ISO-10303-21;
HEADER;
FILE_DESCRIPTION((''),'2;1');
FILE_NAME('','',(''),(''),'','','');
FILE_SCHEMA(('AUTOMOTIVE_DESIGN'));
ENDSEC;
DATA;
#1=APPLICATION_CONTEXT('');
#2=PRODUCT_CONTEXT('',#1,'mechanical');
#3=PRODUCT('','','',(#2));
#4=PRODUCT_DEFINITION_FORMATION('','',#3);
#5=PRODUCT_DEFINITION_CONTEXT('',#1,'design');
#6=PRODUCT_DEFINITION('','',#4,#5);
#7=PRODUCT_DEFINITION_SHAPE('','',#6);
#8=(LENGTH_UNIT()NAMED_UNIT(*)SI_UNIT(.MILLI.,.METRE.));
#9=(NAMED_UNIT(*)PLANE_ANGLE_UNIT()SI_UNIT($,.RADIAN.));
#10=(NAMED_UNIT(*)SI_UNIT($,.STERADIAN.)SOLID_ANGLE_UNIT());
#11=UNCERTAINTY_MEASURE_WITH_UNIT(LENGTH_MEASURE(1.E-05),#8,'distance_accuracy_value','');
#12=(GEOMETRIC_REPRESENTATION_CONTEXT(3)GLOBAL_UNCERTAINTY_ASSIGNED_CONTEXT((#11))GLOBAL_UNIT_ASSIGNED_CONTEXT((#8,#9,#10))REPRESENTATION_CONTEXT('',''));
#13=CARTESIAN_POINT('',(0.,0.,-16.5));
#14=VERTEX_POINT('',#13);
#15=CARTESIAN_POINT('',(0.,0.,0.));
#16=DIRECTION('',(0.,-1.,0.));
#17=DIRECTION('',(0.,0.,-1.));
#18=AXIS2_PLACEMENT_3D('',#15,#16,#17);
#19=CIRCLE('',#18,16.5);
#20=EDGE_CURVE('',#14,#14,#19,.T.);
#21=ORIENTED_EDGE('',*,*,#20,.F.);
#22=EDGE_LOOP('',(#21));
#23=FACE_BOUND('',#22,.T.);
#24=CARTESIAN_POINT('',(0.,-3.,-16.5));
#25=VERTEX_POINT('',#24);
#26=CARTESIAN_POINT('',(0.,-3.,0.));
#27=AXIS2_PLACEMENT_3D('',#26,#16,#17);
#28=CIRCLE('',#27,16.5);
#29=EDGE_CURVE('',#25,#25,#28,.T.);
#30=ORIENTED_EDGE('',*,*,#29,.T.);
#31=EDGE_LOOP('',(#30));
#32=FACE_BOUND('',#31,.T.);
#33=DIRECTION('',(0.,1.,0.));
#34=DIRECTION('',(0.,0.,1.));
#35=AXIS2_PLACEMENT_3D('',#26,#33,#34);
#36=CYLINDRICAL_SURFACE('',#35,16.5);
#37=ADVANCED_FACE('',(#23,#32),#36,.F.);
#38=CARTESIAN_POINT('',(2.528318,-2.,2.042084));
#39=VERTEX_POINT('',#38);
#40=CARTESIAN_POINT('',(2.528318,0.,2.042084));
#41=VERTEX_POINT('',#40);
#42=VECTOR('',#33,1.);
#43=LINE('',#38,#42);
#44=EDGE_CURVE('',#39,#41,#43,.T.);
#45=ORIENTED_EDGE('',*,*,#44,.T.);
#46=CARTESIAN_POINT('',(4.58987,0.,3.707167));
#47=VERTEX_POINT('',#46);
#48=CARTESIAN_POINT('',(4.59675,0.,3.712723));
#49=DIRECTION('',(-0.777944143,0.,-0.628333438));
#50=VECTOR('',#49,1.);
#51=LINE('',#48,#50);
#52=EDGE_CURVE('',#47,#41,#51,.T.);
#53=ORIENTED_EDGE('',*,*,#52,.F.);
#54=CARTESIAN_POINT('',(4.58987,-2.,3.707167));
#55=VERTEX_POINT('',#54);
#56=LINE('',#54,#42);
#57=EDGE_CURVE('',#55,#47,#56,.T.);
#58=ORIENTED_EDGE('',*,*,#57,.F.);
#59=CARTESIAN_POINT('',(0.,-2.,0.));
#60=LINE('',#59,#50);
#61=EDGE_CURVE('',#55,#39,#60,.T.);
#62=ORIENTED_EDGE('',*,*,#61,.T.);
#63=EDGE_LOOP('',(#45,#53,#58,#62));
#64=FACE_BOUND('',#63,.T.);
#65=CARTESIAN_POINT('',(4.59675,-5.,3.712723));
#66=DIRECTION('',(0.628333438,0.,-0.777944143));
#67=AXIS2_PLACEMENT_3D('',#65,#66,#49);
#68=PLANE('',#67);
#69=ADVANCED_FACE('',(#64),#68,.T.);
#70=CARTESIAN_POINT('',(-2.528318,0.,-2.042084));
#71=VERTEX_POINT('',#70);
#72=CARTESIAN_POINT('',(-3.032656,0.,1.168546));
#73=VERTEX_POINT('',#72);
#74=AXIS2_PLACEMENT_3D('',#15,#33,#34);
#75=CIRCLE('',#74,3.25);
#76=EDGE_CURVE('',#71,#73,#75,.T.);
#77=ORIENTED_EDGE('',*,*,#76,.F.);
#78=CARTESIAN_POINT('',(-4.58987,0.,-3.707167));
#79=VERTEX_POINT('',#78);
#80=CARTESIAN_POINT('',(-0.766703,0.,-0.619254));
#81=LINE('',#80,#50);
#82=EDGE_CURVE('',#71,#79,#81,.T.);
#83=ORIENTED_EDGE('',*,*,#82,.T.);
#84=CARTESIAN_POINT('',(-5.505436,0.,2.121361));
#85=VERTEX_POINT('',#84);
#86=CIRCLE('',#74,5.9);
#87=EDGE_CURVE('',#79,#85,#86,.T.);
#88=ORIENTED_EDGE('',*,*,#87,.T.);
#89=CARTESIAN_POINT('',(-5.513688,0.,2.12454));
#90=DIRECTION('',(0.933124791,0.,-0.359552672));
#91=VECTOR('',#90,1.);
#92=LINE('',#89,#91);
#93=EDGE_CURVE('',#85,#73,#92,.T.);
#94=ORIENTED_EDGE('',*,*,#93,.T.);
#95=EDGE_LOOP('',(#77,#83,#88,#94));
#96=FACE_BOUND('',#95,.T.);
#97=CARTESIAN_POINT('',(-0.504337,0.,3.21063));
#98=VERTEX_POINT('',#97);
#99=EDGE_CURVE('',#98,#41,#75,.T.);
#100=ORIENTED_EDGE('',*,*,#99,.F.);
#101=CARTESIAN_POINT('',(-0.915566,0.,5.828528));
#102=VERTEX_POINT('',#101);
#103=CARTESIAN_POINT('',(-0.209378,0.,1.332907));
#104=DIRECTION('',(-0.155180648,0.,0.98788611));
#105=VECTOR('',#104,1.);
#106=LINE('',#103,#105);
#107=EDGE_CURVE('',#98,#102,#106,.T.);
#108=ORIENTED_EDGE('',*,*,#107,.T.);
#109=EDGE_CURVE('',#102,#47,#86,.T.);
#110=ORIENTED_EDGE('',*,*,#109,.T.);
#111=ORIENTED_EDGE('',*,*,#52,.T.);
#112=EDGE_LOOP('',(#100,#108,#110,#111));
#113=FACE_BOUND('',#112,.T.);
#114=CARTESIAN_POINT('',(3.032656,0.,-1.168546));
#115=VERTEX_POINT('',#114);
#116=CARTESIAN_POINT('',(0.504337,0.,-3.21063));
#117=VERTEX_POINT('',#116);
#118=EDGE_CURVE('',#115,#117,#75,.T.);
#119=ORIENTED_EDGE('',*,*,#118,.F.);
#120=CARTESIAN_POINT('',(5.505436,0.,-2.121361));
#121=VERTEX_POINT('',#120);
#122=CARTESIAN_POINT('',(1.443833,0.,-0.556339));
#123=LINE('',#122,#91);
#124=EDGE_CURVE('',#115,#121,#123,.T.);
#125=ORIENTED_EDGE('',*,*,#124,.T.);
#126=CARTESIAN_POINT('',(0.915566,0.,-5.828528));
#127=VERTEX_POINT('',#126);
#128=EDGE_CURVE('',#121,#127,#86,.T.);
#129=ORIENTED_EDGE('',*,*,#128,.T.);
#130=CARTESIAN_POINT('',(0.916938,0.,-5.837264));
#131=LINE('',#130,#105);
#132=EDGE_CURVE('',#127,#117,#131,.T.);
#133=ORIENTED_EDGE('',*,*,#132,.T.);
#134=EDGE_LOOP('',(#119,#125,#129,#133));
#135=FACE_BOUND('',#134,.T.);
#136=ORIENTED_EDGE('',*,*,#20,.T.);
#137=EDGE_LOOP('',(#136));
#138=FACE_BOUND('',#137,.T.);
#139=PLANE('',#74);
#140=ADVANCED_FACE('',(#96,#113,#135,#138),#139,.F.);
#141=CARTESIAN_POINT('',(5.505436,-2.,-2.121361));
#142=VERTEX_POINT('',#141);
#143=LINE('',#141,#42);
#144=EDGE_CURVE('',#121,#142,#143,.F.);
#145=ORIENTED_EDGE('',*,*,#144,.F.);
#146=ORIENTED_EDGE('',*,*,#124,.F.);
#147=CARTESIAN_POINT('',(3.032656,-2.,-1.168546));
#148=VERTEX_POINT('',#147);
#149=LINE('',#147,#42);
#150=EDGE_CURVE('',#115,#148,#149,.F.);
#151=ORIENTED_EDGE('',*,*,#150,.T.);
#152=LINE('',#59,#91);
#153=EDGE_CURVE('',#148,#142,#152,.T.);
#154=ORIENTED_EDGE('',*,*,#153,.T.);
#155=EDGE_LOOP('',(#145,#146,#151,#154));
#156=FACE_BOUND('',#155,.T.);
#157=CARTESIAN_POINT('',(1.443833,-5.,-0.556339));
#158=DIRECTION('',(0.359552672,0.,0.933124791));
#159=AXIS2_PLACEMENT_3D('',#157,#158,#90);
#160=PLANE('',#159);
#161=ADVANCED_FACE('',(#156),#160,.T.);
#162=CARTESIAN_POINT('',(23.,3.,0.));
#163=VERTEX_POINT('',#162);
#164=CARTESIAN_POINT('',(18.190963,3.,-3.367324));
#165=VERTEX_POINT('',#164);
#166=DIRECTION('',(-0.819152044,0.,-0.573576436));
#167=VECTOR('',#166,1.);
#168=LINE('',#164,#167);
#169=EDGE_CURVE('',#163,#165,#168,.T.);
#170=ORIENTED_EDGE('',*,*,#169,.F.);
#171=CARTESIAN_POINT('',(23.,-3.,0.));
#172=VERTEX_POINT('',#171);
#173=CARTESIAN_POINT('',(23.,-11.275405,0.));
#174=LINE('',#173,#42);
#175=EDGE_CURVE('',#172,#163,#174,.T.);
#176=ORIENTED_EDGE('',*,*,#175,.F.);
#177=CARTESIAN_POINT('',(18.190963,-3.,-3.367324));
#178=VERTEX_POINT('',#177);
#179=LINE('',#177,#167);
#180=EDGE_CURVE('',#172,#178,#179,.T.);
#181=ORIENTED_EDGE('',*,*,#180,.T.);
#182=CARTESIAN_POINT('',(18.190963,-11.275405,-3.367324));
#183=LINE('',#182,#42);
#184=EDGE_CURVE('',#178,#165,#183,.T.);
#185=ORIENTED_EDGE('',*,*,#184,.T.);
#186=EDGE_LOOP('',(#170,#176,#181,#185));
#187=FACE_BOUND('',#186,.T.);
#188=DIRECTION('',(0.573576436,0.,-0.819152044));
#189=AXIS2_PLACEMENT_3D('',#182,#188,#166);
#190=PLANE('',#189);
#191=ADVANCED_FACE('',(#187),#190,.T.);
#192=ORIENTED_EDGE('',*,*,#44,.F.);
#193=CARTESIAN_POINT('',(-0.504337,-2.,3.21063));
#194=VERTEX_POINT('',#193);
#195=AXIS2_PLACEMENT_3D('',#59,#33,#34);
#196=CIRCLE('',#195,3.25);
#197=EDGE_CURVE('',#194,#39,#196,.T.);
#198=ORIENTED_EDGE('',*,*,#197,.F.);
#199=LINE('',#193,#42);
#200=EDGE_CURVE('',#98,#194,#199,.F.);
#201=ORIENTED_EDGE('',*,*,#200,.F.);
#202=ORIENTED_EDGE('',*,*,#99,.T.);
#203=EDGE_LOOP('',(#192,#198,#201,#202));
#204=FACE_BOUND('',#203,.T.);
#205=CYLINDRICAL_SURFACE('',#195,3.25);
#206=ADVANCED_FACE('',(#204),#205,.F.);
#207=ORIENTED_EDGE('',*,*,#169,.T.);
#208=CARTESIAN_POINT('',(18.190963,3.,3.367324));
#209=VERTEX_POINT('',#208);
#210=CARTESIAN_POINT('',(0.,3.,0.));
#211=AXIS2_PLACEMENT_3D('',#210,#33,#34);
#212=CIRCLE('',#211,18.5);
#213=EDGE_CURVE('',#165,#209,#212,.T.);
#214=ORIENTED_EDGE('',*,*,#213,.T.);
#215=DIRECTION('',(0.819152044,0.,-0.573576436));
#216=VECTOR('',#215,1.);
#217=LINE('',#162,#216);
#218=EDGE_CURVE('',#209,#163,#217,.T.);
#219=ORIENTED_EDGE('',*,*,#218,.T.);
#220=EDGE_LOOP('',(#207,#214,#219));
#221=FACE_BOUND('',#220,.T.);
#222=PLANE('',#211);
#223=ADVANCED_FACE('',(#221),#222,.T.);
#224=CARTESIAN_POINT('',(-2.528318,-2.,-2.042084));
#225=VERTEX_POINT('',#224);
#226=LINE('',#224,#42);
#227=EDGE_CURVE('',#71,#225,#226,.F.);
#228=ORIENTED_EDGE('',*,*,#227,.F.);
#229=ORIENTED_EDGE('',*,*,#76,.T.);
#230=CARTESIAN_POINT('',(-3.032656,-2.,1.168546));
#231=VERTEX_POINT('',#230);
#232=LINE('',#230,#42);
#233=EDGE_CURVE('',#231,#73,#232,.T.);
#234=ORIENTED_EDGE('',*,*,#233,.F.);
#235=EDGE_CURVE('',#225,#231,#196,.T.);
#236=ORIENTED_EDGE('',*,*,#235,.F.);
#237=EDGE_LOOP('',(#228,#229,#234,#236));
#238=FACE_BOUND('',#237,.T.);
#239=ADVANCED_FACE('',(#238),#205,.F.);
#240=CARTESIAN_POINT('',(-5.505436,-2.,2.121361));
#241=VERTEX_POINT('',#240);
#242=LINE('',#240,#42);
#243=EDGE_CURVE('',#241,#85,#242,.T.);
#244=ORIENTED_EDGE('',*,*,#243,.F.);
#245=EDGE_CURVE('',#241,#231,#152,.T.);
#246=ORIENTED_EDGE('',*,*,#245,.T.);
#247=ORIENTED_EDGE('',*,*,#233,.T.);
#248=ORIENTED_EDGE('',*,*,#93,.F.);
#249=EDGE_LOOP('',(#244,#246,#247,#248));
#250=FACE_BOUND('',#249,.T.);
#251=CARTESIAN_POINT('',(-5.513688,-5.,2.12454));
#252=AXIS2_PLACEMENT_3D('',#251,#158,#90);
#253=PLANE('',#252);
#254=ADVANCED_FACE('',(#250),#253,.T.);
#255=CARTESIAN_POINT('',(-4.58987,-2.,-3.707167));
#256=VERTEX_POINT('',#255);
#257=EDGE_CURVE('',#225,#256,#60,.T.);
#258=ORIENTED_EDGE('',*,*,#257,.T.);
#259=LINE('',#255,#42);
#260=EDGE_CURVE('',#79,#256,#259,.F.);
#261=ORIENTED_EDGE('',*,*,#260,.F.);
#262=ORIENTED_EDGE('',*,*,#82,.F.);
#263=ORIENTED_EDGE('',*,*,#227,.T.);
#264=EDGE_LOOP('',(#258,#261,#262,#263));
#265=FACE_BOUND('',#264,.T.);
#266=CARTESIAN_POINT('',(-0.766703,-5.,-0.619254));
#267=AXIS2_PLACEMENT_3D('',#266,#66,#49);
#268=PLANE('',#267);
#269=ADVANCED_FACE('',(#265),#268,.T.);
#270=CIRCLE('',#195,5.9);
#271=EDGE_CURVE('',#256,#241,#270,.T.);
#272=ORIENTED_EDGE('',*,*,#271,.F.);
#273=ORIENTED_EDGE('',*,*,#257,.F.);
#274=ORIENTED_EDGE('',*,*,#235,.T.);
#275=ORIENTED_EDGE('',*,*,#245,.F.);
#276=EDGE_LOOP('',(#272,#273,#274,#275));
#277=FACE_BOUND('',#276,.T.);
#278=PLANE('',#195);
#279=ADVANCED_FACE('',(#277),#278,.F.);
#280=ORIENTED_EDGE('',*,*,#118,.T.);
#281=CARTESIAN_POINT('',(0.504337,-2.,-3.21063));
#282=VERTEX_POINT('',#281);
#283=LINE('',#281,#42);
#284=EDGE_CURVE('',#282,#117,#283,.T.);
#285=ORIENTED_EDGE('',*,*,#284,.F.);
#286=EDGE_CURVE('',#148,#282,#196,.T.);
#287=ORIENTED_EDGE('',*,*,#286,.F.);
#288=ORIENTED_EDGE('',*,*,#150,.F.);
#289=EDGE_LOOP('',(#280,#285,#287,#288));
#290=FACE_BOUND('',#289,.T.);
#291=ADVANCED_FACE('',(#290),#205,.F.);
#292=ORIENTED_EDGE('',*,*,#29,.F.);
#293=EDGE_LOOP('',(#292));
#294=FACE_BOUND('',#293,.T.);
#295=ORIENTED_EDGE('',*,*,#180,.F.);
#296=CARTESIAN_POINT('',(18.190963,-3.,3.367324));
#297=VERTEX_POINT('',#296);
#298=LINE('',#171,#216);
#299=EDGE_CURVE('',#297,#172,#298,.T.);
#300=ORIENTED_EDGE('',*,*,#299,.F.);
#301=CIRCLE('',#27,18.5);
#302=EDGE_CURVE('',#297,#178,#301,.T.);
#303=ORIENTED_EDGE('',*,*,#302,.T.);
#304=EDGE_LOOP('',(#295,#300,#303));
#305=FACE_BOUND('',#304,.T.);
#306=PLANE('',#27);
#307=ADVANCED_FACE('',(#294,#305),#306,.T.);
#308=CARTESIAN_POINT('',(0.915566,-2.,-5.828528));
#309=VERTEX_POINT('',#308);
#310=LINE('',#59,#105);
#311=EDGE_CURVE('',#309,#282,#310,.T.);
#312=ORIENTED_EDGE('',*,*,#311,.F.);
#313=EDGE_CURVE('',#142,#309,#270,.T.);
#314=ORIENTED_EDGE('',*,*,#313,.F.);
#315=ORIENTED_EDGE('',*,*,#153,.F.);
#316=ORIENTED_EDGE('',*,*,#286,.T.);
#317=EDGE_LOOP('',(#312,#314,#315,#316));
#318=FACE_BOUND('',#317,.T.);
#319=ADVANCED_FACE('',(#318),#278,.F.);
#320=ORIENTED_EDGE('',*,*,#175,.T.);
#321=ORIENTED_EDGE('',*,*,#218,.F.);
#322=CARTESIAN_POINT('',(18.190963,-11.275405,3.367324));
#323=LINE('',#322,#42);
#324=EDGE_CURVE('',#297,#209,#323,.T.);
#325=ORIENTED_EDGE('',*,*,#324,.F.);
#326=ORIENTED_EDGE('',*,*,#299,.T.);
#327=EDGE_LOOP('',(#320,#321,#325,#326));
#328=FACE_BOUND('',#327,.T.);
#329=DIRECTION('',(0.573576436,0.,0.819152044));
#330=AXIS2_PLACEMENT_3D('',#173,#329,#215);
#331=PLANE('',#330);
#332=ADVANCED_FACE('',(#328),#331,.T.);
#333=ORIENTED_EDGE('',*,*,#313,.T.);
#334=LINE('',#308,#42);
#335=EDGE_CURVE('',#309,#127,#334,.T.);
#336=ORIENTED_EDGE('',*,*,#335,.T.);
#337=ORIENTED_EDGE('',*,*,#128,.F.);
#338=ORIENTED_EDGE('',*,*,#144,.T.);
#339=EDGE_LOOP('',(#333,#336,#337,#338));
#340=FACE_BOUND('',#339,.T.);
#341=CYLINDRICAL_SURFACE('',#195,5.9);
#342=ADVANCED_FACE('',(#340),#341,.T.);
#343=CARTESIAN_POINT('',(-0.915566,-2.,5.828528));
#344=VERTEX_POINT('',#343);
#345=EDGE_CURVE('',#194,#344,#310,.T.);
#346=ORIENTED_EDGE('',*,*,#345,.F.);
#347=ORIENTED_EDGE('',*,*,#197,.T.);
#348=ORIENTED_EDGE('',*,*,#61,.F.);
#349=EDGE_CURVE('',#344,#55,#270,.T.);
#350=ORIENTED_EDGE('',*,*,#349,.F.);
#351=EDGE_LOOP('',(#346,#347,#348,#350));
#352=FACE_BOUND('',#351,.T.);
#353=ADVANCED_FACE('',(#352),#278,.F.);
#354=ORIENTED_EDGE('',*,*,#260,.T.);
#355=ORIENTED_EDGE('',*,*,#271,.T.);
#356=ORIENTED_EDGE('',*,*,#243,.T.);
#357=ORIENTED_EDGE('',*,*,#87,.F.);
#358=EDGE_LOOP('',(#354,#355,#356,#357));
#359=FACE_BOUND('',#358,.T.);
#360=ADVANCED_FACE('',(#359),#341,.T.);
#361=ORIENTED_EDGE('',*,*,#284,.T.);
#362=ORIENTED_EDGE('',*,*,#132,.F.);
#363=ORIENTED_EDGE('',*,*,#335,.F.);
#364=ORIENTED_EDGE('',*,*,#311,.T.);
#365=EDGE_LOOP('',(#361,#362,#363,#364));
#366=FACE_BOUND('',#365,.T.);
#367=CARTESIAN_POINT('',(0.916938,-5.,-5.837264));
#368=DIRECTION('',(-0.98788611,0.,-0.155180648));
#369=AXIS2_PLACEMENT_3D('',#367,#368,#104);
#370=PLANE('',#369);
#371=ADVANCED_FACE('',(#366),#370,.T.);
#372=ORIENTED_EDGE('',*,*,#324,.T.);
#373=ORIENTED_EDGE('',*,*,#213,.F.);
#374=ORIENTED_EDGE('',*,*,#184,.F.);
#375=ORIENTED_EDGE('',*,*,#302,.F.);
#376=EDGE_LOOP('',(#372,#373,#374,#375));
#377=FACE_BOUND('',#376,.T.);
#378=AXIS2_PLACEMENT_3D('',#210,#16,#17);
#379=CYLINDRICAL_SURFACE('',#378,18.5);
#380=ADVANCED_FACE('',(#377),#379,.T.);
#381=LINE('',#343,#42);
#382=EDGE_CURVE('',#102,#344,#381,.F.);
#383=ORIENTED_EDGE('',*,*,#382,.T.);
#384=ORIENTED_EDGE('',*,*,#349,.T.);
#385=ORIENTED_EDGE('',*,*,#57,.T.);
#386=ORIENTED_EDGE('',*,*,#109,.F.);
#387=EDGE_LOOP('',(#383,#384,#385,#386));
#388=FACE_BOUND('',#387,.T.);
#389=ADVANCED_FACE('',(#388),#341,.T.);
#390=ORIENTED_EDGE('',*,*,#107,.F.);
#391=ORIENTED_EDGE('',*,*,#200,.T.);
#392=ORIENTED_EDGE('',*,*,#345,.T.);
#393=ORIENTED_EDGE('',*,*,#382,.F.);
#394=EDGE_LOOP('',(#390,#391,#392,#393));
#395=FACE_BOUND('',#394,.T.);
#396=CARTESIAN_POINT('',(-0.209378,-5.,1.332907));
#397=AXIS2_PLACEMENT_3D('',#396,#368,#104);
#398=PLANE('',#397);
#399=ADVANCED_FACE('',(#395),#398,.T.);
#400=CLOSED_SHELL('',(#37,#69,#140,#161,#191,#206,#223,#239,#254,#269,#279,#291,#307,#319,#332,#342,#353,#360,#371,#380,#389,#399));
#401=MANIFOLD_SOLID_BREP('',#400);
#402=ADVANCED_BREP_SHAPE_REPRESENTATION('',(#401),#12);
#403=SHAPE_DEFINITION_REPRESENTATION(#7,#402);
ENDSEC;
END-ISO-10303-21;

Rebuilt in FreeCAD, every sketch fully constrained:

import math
import FreeCAD as App
import Part
import Sketcher

V = App.Vector
Q = App.Units.Quantity


def add_polygon(sketch, points):
    """Adds a closed chain of lines whose ends are joined by coincident constraints."""
    first, n = sketch.GeometryCount, len(points)
    for a, b in zip(points, points[1:] + points[:1]):
        sketch.addGeometry(Part.LineSegment(App.Vector(*a, 0), App.Vector(*b, 0)), False)
    for i in range(n):
        sketch.addConstraint(Sketcher.Constraint("Coincident", first + i, 2, first + (i + 1) % n, 1))

doc = App.newDocument("Part")
body = doc.addObject("PartDesign::Body", "Body")

# Sketch on XZ plane
sketch1 = body.newObject("Sketcher::SketchObject", "Sketch")
sketch1.AttachmentSupport = (doc.getObject("XZ_Plane"), [""])
sketch1.MapMode = "FlatFace"
sketch1.addGeometry(Part.Circle(V(0, 0, 0), V(0, 0, 1), 18), False)
sketch1.addConstraint(Sketcher.Constraint("Coincident", 0, 3, -1, 1))
sketch1.addConstraint(Sketcher.Constraint("Diameter", 0, Q("37 mm")))
pad1 = body.newObject("PartDesign::Pad", "Pad")
pad1.Profile = sketch1
pad1.Length = 3
pad1.Reversed = True

# Sketch on XZ plane
sketch2 = body.newObject("Sketcher::SketchObject", "Sketch001")
sketch2.AttachmentSupport = (doc.getObject("XZ_Plane"), [""])
sketch2.MapMode = "FlatFace"
sketch2.AttachmentOffset = App.Placement(V(0, 0, 3), App.Rotation())
sketch2.addGeometry(Part.Circle(V(0, 0, 0), V(0, 0, 1), 18), False)
sketch2.addGeometry(Part.Circle(V(0, 0, 0), V(0, 0, 1), 16), False)
sketch2.addConstraint(Sketcher.Constraint("Coincident", 0, 3, -1, 1))
sketch2.addConstraint(Sketcher.Constraint("Coincident", 1, 3, -1, 1))
sketch2.addConstraint(Sketcher.Constraint("Diameter", 0, Q("37 mm")))
sketch2.addConstraint(Sketcher.Constraint("Diameter", 1, Q("33 mm")))
pad2 = body.newObject("PartDesign::Pad", "Pad001")
pad2.Profile = sketch2
pad2.Length = 3
pad2.Reversed = True

# Sketch on XZ plane
sketch3 = body.newObject("Sketcher::SketchObject", "Sketch002")
sketch3.AttachmentSupport = (doc.getObject("XZ_Plane"), [""])
sketch3.MapMode = "FlatFace"
sketch3.AttachmentOffset = App.Placement(V(0, 0, -3), App.Rotation())
sketch3.addGeometry(Part.Circle(V(0, 0, 0), V(0, 0, 1), 5.9), False)
sketch3.addGeometry(Part.Circle(V(0, 0, 0), V(0, 0, 1), 3.2), False)
sketch3.addConstraint(Sketcher.Constraint("Coincident", 0, 3, -1, 1))
sketch3.addConstraint(Sketcher.Constraint("Coincident", 1, 3, -1, 1))
sketch3.addConstraint(Sketcher.Constraint("Diameter", 0, Q("11.8 mm")))
sketch3.addConstraint(Sketcher.Constraint("Diameter", 1, Q("6.5 mm")))
pad3 = body.newObject("PartDesign::Pad", "Pad002")
pad3.Profile = sketch3
pad3.Length = 5

# Sketch on XZ plane
sketch4 = body.newObject("Sketcher::SketchObject", "Sketch003")
sketch4.AttachmentSupport = (doc.getObject("XZ_Plane"), [""])
sketch4.MapMode = "FlatFace"
sketch4.addGeometry(Part.LineSegment(V(4.6, 3.7, 0), V(1.3, 1, 0)), False)
sketch4.addGeometry(Part.LineSegment(V(1.3, 1, 0), V(1.4, -0.6, 0)), False)
sketch4.addGeometry(Part.LineSegment(V(1.4, -0.6, 0), V(5.5, -2.1, 0)), False)
sketch4.addGeometry(Part.ArcOfCircle(Part.Circle(V(0, 0, 0), V(0, 0, 1), 5.9), math.radians(-21), math.radians(39)), False)
sketch4.addGeometry(Part.LineSegment(V(-0.8, -0.6, 0), V(-4.6, -3.7, 0)), False)
sketch4.addGeometry(Part.ArcOfCircle(Part.Circle(V(0, 0, 0), V(0, 0, 1), 5.9), math.radians(-141), math.radians(-81)), False)
sketch4.addGeometry(Part.LineSegment(V(0.9, -5.8, 0), V(0.2, -1, 0)), False)
sketch4.addGeometry(Part.LineSegment(V(0.2, -1, 0), V(-0.8, -0.6, 0)), False)
sketch4.addGeometry(Part.LineSegment(V(-0.2, 1.3, 0), V(-0.9, 5.8, 0)), False)
sketch4.addGeometry(Part.ArcOfCircle(Part.Circle(V(0, 0, 0), V(0, 0, 1), 5.9), math.radians(99), math.radians(159)), False)
sketch4.addGeometry(Part.LineSegment(V(-5.5, 2.1, 0), V(-1.1, 0.4, 0)), False)
sketch4.addGeometry(Part.LineSegment(V(-1.1, 0.4, 0), V(-0.2, 1.3, 0)), False)
sketch4.addConstraint(Sketcher.Constraint("Coincident", 0, 2, 1, 1))
sketch4.addConstraint(Sketcher.Constraint("Coincident", 1, 2, 2, 1))
sketch4.addConstraint(Sketcher.Constraint("Coincident", 2, 2, 3, 1))
sketch4.addConstraint(Sketcher.Constraint("Coincident", 3, 2, 0, 1))
sketch4.addConstraint(Sketcher.Constraint("Coincident", 4, 2, 5, 1))
sketch4.addConstraint(Sketcher.Constraint("Coincident", 5, 2, 6, 1))
sketch4.addConstraint(Sketcher.Constraint("Coincident", 6, 2, 7, 1))
sketch4.addConstraint(Sketcher.Constraint("Coincident", 7, 2, 4, 1))
sketch4.addConstraint(Sketcher.Constraint("Coincident", 8, 2, 9, 1))
sketch4.addConstraint(Sketcher.Constraint("Coincident", 9, 2, 10, 1))
sketch4.addConstraint(Sketcher.Constraint("Coincident", 10, 2, 11, 1))
sketch4.addConstraint(Sketcher.Constraint("Coincident", 11, 2, 8, 1))
sketch4.addConstraint(Sketcher.Constraint("Coincident", 3, 3, -1, 1))
sketch4.addConstraint(Sketcher.Constraint("Coincident", 5, 3, -1, 1))
sketch4.addConstraint(Sketcher.Constraint("Coincident", 9, 3, -1, 1))
sketch4.addConstraint(Sketcher.Constraint("Equal", 3, 5))
sketch4.addConstraint(Sketcher.Constraint("Equal", 5, 9))
sketch4.addConstraint(Sketcher.Constraint("Parallel", 0, 4))
sketch4.addConstraint(Sketcher.Constraint("Parallel", 6, 8))
sketch4.addConstraint(Sketcher.Constraint("Parallel", 2, 10))
sketch4.addConstraint(Sketcher.Constraint("Radius", 3, Q("5.908843 mm")))
sketch4.addConstraint(Sketcher.Constraint("DistanceY", 2, 2, 1, 2, Q("1.568201 mm")))
sketch4.addConstraint(Sketcher.Constraint("DistanceY", 0, 2, 11, 2, Q("0.295202 mm")))
sketch4.addConstraint(Sketcher.Constraint("Distance", 1, Q("1.601959 mm")))
sketch4.addConstraint(Sketcher.Constraint("Distance", 6, Q("4.93948 mm")))
sketch4.addConstraint(Sketcher.Constraint("Distance", 8, Q("4.559591 mm")))
sketch4.addConstraint(Sketcher.Constraint("Distance", 10, Q("4.741781 mm")))
sketch4.addConstraint(Sketcher.Constraint("Distance", 11, Q("1.268012 mm")))
sketch4.addConstraint(Sketcher.Constraint("DistanceX", -1, 1, 0, 2, Q("1.28479 mm")))
sketch4.addConstraint(Sketcher.Constraint("DistanceY", 1, 2, -1, 1, Q("0.556339 mm")))
sketch4.addConstraint(Sketcher.Constraint("DistanceX", -1, 1, 3, 2, Q("4.59675 mm")))
sketch4.addConstraint(Sketcher.Constraint("DistanceX", 4, 2, -1, 1, Q("4.59675 mm")))
sketch4.addConstraint(Sketcher.Constraint("DistanceX", -1, 1, 5, 2, Q("0.916938 mm")))
sketch4.addConstraint(Sketcher.Constraint("DistanceY", 6, 2, -1, 1, Q("0.95762 mm")))
sketch4.addConstraint(Sketcher.Constraint("DistanceX", 8, 2, -1, 1, Q("0.916938 mm")))
sketch4.addConstraint(Sketcher.Constraint("DistanceX", 7, 2, 6, 2, Q("0.917129 mm")))
pocket1 = body.newObject("PartDesign::Pocket", "Pocket")
pocket1.Profile = sketch4
pocket1.Length = 5
pocket1.Reversed = True

# Sketch on XZ plane
sketch5 = body.newObject("Sketcher::SketchObject", "Sketch004")
sketch5.AttachmentSupport = (doc.getObject("XZ_Plane"), [""])
sketch5.MapMode = "FlatFace"
sketch5.AttachmentOffset = App.Placement(V(0, 0, -3), App.Rotation())
add_polygon(sketch5, [(18, -3), (18, 3), (23, 0)])  # lines 0-2
sketch5.addConstraint(Sketcher.Constraint("Vertical", 0))
sketch5.addConstraint(Sketcher.Constraint("PointOnObject", 1, 2, -1))
sketch5.addConstraint(Sketcher.Constraint("Equal", 1, 2))
sketch5.addConstraint(Sketcher.Constraint("Angle", 1, Q("-35 deg")))
sketch5.addConstraint(Sketcher.Constraint("DistanceX", -1, 1, 1, 2, Q("23 mm")))
sketch5.addConstraint(Sketcher.Constraint("DistanceY", 0, 1, 0, 2, Q("6.734648 mm")))
pad4 = body.newObject("PartDesign::Pad", "Pad003")
pad4.Profile = sketch5
pad4.Length = 6

doc.recompute()
